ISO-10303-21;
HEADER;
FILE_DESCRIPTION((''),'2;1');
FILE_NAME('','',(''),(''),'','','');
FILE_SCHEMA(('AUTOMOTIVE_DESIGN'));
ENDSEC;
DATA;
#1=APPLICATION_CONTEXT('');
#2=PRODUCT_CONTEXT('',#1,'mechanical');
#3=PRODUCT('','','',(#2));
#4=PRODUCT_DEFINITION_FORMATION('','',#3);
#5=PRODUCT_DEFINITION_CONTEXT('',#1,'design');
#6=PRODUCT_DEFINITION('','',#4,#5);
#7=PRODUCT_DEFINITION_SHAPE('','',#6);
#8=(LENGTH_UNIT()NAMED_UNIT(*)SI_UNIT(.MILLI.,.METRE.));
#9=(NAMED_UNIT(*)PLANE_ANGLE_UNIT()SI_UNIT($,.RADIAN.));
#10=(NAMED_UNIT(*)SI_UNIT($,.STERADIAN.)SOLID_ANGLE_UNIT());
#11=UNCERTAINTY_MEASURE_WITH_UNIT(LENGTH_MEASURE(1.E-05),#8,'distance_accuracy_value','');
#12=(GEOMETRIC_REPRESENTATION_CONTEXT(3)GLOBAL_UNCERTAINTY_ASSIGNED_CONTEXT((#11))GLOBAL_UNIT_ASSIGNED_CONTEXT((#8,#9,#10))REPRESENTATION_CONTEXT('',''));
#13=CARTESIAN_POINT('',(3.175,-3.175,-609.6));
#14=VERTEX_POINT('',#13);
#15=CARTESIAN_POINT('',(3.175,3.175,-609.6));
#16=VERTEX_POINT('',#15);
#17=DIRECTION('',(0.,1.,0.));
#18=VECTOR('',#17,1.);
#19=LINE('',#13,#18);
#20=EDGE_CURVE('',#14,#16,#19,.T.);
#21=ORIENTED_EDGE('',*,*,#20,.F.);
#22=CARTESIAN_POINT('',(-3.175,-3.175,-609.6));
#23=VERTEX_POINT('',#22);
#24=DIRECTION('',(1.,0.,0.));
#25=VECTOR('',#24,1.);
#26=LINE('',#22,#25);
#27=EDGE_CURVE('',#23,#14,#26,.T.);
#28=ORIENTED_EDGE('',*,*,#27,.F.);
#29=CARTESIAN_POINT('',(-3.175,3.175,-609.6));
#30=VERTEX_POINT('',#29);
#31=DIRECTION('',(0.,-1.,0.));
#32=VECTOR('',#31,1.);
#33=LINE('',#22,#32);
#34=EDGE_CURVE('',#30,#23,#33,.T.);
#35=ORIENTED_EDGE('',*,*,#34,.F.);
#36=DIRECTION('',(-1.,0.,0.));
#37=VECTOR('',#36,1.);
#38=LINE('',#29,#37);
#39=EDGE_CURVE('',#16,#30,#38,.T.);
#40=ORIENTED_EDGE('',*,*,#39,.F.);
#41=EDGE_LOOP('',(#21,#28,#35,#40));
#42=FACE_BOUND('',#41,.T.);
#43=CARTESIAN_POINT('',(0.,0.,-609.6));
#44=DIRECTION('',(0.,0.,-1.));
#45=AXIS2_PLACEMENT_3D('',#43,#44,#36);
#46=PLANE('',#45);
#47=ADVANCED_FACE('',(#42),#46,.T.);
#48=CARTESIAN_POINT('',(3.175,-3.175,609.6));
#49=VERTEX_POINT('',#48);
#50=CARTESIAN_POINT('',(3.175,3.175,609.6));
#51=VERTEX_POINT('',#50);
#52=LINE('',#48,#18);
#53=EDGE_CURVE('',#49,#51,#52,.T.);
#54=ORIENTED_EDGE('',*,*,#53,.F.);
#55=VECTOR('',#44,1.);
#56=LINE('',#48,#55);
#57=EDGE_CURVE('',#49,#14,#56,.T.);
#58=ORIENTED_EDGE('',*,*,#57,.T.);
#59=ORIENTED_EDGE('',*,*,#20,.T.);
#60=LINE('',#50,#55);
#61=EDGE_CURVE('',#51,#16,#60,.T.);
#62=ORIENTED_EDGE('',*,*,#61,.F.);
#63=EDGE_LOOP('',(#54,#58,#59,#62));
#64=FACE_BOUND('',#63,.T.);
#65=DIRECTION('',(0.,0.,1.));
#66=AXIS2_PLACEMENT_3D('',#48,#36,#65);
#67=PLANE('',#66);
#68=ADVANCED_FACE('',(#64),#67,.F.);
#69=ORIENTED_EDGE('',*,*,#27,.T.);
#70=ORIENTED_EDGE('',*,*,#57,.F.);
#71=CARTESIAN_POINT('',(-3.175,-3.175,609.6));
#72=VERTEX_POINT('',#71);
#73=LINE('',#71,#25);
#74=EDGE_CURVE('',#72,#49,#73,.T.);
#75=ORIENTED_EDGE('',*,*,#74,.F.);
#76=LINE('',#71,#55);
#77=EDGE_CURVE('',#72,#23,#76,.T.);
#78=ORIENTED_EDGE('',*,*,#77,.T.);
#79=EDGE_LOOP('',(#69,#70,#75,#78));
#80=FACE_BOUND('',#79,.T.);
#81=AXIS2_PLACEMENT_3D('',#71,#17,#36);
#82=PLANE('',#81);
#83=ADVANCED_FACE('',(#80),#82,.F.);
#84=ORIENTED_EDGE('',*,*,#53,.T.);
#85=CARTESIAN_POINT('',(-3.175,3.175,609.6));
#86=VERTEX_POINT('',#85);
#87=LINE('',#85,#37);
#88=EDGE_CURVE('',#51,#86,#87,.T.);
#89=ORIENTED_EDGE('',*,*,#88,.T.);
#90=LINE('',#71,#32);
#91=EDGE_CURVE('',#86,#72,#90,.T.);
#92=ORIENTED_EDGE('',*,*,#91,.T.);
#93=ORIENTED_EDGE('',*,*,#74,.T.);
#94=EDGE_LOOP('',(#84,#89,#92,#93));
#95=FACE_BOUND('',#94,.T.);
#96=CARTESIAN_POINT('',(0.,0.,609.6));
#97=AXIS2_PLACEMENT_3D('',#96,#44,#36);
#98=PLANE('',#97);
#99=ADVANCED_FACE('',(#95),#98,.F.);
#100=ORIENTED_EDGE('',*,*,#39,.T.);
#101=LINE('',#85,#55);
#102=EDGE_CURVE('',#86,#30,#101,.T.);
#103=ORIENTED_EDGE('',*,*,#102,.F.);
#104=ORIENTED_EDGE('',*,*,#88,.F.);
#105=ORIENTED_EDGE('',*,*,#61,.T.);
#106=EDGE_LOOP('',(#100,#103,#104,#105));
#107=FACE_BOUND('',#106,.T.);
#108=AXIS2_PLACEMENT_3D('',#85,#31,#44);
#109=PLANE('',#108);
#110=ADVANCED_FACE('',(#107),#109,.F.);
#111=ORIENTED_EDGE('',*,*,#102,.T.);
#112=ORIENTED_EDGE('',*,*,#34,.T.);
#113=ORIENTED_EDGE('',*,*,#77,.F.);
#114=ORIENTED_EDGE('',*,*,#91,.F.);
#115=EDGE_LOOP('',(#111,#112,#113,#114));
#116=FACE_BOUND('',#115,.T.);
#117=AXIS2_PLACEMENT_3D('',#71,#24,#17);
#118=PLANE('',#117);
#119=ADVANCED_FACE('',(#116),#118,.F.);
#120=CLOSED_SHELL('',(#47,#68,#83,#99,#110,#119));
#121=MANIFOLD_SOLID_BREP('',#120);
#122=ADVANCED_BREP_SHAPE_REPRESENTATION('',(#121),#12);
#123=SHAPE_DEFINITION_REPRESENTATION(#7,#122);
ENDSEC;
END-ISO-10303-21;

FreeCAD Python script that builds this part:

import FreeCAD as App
import Part
import Sketcher

V = App.Vector
Q = App.Units.Quantity


def add_polygon(sketch, points):
    """Adds a closed chain of lines whose ends are joined by coincident constraints."""
    first, n = sketch.GeometryCount, len(points)
    for a, b in zip(points, points[1:] + points[:1]):
        sketch.addGeometry(Part.LineSegment(App.Vector(*a, 0), App.Vector(*b, 0)), False)
    for i in range(n):
        sketch.addConstraint(Sketcher.Constraint("Coincident", first + i, 2, first + (i + 1) % n, 1))

doc = App.newDocument("Part")
body = doc.addObject("PartDesign::Body", "Body")

# Sketch on XY plane
sketch1 = body.newObject("Sketcher::SketchObject", "Sketch")
sketch1.AttachmentSupport = (doc.getObject("XY_Plane"), [""])
sketch1.MapMode = "FlatFace"
add_polygon(sketch1, [(-3, 3), (-3, -3), (3, -3), (3, 3)])  # lines 0-3
sketch1.addConstraint([
    Sketcher.Constraint("Vertical", 0),
    Sketcher.Constraint("Horizontal", 1),
    Sketcher.Constraint("Vertical", 2),
    Sketcher.Constraint("Horizontal", 3),
    Sketcher.Constraint("Symmetric", 0, 2, 2, 2, -1, 1),
    Sketcher.Constraint("Equal", 3, 0),
    Sketcher.Constraint("DistanceX", 1, 1, 1, 2, Q("0.25 in")),
])
pad1 = body.newObject("PartDesign::Pad", "Pad")
pad1.Profile = sketch1
pad1.Type = "TwoLengths"
pad1.Length = Q("24 in")
pad1.Length2 = Q("24 in")

doc.recompute()
